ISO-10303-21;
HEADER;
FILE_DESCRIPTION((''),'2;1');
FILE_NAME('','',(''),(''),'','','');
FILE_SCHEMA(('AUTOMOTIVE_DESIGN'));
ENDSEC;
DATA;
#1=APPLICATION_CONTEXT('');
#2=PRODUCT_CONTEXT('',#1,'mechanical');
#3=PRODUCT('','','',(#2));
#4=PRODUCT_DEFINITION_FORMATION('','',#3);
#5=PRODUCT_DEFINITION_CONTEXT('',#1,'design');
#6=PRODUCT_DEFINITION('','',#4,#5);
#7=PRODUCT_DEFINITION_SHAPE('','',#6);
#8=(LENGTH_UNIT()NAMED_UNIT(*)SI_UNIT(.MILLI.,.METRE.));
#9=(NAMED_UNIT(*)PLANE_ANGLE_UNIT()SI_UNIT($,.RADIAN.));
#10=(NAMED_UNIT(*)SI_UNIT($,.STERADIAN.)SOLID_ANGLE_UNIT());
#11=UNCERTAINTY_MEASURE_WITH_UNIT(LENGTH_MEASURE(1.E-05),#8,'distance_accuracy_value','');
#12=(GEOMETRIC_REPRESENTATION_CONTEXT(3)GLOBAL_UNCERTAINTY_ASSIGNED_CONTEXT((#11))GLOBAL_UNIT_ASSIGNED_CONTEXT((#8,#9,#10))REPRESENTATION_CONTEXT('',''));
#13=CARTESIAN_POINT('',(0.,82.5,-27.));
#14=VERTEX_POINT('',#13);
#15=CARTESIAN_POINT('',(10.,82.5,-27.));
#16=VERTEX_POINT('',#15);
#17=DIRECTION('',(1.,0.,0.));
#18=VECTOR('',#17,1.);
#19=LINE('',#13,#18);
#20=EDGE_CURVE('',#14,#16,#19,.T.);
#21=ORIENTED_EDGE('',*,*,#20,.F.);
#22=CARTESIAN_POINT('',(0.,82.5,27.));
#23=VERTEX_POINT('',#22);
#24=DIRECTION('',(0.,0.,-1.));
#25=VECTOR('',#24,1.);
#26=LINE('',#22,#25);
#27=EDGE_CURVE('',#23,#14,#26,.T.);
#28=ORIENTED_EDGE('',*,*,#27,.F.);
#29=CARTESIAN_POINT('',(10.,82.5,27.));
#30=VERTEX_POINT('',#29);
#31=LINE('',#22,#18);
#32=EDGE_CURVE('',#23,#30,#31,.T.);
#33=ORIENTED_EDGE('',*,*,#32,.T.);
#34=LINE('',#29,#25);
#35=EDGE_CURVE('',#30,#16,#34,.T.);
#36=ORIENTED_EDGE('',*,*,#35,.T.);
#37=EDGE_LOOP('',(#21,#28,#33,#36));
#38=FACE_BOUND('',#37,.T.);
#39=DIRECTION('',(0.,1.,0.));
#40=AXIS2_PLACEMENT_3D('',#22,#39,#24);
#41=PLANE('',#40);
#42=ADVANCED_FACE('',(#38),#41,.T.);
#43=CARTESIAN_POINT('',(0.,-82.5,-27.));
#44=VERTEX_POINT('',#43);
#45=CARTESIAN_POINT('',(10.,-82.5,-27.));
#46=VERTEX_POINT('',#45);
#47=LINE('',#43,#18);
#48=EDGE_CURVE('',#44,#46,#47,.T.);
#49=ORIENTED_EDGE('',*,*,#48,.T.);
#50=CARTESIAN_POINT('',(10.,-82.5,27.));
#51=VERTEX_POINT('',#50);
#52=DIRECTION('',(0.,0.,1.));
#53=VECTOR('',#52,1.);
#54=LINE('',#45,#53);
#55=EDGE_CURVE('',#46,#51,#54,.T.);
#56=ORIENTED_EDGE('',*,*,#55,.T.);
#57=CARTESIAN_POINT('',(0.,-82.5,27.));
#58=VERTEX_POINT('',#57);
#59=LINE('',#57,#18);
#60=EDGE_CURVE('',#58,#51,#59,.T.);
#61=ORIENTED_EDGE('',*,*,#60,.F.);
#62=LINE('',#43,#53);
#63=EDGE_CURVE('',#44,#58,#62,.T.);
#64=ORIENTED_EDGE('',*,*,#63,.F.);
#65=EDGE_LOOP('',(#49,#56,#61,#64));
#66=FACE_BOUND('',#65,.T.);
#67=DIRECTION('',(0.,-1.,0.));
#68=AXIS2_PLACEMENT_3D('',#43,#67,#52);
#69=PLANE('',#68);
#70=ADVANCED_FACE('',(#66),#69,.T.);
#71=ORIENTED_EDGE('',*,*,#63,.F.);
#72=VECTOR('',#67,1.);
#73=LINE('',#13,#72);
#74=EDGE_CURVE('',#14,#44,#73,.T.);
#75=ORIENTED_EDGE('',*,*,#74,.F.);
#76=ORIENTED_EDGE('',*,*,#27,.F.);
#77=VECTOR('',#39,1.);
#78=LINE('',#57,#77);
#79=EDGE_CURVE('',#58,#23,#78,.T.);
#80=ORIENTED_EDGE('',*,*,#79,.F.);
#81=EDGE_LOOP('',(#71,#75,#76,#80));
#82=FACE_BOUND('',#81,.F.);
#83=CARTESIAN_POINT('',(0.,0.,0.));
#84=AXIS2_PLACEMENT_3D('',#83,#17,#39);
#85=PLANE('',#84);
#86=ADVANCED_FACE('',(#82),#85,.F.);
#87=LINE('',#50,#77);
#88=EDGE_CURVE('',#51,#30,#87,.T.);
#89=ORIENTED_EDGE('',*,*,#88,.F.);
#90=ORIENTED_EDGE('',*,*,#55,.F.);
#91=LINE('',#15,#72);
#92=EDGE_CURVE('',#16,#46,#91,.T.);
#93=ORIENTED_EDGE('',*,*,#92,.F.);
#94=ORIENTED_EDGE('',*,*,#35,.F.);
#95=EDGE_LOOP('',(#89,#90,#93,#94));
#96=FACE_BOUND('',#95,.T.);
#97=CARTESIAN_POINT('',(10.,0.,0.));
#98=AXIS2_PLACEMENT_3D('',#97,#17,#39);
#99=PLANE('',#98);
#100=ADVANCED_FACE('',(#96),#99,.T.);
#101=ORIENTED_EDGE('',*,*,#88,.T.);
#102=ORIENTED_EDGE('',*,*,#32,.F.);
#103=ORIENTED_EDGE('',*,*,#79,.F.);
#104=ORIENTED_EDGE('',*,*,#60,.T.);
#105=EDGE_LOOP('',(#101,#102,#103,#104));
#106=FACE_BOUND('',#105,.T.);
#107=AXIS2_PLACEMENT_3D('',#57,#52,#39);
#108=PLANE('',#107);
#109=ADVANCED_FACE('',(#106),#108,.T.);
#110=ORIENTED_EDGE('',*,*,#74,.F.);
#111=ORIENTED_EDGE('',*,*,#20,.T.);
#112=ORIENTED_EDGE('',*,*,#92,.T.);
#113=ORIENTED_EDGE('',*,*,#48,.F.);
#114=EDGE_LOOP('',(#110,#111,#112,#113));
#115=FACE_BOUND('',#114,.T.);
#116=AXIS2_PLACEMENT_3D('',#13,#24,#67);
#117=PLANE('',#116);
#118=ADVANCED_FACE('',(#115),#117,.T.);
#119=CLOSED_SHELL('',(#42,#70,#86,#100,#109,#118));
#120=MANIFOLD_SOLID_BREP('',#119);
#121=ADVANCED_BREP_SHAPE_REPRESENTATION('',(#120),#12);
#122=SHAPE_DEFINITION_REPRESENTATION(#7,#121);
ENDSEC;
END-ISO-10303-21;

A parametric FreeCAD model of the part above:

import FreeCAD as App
import Part
import Sketcher

V = App.Vector

doc = App.newDocument("Part")
body = doc.addObject("PartDesign::Body", "Body")

sketch1 = doc.addObject("Sketcher::SketchObject", "Sketch")
body.addObject(sketch1)
sketch1.AttachmentSupport = (doc.YZ_Plane, [""])
sketch1.MapMode = "FlatFace"
sketch1.addGeometry(Part.LineSegment(V(82, 27, 0), V(-82, 27, 0)), False)
sketch1.addGeometry(Part.LineSegment(V(-82, 27, 0), V(-82, -27, 0)), False)
sketch1.addGeometry(Part.LineSegment(V(-82, -27, 0), V(82, -27, 0)), False)
sketch1.addGeometry(Part.LineSegment(V(82, -27, 0), V(82, 27, 0)), False)
sketch1.addConstraint(Sketcher.Constraint("Coincident", 0, 2, 1, 1))
sketch1.addConstraint(Sketcher.Constraint("Coincident", 1, 2, 2, 1))
sketch1.addConstraint(Sketcher.Constraint("Coincident", 2, 2, 3, 1))
sketch1.addConstraint(Sketcher.Constraint("Coincident", 3, 2, 0, 1))
sketch1.addConstraint(Sketcher.Constraint("Horizontal", 0))
sketch1.addConstraint(Sketcher.Constraint("Vertical", 1))
sketch1.addConstraint(Sketcher.Constraint("Horizontal", 2))
sketch1.addConstraint(Sketcher.Constraint("Vertical", 3))
sketch1.addConstraint(Sketcher.Constraint("Symmetric", 0, 2, 2, 2, -1, 1))
sketch1.addConstraint(Sketcher.Constraint("DistanceX", 0, 2, 0, 1, 165.0))
sketch1.addConstraint(Sketcher.Constraint("DistanceY", 1, 2, 1, 1, 54.0))
pad1 = doc.addObject("PartDesign::Pad", "Pad")
body.addObject(pad1)
pad1.Profile = sketch1
pad1.Length = 10

doc.recompute()
